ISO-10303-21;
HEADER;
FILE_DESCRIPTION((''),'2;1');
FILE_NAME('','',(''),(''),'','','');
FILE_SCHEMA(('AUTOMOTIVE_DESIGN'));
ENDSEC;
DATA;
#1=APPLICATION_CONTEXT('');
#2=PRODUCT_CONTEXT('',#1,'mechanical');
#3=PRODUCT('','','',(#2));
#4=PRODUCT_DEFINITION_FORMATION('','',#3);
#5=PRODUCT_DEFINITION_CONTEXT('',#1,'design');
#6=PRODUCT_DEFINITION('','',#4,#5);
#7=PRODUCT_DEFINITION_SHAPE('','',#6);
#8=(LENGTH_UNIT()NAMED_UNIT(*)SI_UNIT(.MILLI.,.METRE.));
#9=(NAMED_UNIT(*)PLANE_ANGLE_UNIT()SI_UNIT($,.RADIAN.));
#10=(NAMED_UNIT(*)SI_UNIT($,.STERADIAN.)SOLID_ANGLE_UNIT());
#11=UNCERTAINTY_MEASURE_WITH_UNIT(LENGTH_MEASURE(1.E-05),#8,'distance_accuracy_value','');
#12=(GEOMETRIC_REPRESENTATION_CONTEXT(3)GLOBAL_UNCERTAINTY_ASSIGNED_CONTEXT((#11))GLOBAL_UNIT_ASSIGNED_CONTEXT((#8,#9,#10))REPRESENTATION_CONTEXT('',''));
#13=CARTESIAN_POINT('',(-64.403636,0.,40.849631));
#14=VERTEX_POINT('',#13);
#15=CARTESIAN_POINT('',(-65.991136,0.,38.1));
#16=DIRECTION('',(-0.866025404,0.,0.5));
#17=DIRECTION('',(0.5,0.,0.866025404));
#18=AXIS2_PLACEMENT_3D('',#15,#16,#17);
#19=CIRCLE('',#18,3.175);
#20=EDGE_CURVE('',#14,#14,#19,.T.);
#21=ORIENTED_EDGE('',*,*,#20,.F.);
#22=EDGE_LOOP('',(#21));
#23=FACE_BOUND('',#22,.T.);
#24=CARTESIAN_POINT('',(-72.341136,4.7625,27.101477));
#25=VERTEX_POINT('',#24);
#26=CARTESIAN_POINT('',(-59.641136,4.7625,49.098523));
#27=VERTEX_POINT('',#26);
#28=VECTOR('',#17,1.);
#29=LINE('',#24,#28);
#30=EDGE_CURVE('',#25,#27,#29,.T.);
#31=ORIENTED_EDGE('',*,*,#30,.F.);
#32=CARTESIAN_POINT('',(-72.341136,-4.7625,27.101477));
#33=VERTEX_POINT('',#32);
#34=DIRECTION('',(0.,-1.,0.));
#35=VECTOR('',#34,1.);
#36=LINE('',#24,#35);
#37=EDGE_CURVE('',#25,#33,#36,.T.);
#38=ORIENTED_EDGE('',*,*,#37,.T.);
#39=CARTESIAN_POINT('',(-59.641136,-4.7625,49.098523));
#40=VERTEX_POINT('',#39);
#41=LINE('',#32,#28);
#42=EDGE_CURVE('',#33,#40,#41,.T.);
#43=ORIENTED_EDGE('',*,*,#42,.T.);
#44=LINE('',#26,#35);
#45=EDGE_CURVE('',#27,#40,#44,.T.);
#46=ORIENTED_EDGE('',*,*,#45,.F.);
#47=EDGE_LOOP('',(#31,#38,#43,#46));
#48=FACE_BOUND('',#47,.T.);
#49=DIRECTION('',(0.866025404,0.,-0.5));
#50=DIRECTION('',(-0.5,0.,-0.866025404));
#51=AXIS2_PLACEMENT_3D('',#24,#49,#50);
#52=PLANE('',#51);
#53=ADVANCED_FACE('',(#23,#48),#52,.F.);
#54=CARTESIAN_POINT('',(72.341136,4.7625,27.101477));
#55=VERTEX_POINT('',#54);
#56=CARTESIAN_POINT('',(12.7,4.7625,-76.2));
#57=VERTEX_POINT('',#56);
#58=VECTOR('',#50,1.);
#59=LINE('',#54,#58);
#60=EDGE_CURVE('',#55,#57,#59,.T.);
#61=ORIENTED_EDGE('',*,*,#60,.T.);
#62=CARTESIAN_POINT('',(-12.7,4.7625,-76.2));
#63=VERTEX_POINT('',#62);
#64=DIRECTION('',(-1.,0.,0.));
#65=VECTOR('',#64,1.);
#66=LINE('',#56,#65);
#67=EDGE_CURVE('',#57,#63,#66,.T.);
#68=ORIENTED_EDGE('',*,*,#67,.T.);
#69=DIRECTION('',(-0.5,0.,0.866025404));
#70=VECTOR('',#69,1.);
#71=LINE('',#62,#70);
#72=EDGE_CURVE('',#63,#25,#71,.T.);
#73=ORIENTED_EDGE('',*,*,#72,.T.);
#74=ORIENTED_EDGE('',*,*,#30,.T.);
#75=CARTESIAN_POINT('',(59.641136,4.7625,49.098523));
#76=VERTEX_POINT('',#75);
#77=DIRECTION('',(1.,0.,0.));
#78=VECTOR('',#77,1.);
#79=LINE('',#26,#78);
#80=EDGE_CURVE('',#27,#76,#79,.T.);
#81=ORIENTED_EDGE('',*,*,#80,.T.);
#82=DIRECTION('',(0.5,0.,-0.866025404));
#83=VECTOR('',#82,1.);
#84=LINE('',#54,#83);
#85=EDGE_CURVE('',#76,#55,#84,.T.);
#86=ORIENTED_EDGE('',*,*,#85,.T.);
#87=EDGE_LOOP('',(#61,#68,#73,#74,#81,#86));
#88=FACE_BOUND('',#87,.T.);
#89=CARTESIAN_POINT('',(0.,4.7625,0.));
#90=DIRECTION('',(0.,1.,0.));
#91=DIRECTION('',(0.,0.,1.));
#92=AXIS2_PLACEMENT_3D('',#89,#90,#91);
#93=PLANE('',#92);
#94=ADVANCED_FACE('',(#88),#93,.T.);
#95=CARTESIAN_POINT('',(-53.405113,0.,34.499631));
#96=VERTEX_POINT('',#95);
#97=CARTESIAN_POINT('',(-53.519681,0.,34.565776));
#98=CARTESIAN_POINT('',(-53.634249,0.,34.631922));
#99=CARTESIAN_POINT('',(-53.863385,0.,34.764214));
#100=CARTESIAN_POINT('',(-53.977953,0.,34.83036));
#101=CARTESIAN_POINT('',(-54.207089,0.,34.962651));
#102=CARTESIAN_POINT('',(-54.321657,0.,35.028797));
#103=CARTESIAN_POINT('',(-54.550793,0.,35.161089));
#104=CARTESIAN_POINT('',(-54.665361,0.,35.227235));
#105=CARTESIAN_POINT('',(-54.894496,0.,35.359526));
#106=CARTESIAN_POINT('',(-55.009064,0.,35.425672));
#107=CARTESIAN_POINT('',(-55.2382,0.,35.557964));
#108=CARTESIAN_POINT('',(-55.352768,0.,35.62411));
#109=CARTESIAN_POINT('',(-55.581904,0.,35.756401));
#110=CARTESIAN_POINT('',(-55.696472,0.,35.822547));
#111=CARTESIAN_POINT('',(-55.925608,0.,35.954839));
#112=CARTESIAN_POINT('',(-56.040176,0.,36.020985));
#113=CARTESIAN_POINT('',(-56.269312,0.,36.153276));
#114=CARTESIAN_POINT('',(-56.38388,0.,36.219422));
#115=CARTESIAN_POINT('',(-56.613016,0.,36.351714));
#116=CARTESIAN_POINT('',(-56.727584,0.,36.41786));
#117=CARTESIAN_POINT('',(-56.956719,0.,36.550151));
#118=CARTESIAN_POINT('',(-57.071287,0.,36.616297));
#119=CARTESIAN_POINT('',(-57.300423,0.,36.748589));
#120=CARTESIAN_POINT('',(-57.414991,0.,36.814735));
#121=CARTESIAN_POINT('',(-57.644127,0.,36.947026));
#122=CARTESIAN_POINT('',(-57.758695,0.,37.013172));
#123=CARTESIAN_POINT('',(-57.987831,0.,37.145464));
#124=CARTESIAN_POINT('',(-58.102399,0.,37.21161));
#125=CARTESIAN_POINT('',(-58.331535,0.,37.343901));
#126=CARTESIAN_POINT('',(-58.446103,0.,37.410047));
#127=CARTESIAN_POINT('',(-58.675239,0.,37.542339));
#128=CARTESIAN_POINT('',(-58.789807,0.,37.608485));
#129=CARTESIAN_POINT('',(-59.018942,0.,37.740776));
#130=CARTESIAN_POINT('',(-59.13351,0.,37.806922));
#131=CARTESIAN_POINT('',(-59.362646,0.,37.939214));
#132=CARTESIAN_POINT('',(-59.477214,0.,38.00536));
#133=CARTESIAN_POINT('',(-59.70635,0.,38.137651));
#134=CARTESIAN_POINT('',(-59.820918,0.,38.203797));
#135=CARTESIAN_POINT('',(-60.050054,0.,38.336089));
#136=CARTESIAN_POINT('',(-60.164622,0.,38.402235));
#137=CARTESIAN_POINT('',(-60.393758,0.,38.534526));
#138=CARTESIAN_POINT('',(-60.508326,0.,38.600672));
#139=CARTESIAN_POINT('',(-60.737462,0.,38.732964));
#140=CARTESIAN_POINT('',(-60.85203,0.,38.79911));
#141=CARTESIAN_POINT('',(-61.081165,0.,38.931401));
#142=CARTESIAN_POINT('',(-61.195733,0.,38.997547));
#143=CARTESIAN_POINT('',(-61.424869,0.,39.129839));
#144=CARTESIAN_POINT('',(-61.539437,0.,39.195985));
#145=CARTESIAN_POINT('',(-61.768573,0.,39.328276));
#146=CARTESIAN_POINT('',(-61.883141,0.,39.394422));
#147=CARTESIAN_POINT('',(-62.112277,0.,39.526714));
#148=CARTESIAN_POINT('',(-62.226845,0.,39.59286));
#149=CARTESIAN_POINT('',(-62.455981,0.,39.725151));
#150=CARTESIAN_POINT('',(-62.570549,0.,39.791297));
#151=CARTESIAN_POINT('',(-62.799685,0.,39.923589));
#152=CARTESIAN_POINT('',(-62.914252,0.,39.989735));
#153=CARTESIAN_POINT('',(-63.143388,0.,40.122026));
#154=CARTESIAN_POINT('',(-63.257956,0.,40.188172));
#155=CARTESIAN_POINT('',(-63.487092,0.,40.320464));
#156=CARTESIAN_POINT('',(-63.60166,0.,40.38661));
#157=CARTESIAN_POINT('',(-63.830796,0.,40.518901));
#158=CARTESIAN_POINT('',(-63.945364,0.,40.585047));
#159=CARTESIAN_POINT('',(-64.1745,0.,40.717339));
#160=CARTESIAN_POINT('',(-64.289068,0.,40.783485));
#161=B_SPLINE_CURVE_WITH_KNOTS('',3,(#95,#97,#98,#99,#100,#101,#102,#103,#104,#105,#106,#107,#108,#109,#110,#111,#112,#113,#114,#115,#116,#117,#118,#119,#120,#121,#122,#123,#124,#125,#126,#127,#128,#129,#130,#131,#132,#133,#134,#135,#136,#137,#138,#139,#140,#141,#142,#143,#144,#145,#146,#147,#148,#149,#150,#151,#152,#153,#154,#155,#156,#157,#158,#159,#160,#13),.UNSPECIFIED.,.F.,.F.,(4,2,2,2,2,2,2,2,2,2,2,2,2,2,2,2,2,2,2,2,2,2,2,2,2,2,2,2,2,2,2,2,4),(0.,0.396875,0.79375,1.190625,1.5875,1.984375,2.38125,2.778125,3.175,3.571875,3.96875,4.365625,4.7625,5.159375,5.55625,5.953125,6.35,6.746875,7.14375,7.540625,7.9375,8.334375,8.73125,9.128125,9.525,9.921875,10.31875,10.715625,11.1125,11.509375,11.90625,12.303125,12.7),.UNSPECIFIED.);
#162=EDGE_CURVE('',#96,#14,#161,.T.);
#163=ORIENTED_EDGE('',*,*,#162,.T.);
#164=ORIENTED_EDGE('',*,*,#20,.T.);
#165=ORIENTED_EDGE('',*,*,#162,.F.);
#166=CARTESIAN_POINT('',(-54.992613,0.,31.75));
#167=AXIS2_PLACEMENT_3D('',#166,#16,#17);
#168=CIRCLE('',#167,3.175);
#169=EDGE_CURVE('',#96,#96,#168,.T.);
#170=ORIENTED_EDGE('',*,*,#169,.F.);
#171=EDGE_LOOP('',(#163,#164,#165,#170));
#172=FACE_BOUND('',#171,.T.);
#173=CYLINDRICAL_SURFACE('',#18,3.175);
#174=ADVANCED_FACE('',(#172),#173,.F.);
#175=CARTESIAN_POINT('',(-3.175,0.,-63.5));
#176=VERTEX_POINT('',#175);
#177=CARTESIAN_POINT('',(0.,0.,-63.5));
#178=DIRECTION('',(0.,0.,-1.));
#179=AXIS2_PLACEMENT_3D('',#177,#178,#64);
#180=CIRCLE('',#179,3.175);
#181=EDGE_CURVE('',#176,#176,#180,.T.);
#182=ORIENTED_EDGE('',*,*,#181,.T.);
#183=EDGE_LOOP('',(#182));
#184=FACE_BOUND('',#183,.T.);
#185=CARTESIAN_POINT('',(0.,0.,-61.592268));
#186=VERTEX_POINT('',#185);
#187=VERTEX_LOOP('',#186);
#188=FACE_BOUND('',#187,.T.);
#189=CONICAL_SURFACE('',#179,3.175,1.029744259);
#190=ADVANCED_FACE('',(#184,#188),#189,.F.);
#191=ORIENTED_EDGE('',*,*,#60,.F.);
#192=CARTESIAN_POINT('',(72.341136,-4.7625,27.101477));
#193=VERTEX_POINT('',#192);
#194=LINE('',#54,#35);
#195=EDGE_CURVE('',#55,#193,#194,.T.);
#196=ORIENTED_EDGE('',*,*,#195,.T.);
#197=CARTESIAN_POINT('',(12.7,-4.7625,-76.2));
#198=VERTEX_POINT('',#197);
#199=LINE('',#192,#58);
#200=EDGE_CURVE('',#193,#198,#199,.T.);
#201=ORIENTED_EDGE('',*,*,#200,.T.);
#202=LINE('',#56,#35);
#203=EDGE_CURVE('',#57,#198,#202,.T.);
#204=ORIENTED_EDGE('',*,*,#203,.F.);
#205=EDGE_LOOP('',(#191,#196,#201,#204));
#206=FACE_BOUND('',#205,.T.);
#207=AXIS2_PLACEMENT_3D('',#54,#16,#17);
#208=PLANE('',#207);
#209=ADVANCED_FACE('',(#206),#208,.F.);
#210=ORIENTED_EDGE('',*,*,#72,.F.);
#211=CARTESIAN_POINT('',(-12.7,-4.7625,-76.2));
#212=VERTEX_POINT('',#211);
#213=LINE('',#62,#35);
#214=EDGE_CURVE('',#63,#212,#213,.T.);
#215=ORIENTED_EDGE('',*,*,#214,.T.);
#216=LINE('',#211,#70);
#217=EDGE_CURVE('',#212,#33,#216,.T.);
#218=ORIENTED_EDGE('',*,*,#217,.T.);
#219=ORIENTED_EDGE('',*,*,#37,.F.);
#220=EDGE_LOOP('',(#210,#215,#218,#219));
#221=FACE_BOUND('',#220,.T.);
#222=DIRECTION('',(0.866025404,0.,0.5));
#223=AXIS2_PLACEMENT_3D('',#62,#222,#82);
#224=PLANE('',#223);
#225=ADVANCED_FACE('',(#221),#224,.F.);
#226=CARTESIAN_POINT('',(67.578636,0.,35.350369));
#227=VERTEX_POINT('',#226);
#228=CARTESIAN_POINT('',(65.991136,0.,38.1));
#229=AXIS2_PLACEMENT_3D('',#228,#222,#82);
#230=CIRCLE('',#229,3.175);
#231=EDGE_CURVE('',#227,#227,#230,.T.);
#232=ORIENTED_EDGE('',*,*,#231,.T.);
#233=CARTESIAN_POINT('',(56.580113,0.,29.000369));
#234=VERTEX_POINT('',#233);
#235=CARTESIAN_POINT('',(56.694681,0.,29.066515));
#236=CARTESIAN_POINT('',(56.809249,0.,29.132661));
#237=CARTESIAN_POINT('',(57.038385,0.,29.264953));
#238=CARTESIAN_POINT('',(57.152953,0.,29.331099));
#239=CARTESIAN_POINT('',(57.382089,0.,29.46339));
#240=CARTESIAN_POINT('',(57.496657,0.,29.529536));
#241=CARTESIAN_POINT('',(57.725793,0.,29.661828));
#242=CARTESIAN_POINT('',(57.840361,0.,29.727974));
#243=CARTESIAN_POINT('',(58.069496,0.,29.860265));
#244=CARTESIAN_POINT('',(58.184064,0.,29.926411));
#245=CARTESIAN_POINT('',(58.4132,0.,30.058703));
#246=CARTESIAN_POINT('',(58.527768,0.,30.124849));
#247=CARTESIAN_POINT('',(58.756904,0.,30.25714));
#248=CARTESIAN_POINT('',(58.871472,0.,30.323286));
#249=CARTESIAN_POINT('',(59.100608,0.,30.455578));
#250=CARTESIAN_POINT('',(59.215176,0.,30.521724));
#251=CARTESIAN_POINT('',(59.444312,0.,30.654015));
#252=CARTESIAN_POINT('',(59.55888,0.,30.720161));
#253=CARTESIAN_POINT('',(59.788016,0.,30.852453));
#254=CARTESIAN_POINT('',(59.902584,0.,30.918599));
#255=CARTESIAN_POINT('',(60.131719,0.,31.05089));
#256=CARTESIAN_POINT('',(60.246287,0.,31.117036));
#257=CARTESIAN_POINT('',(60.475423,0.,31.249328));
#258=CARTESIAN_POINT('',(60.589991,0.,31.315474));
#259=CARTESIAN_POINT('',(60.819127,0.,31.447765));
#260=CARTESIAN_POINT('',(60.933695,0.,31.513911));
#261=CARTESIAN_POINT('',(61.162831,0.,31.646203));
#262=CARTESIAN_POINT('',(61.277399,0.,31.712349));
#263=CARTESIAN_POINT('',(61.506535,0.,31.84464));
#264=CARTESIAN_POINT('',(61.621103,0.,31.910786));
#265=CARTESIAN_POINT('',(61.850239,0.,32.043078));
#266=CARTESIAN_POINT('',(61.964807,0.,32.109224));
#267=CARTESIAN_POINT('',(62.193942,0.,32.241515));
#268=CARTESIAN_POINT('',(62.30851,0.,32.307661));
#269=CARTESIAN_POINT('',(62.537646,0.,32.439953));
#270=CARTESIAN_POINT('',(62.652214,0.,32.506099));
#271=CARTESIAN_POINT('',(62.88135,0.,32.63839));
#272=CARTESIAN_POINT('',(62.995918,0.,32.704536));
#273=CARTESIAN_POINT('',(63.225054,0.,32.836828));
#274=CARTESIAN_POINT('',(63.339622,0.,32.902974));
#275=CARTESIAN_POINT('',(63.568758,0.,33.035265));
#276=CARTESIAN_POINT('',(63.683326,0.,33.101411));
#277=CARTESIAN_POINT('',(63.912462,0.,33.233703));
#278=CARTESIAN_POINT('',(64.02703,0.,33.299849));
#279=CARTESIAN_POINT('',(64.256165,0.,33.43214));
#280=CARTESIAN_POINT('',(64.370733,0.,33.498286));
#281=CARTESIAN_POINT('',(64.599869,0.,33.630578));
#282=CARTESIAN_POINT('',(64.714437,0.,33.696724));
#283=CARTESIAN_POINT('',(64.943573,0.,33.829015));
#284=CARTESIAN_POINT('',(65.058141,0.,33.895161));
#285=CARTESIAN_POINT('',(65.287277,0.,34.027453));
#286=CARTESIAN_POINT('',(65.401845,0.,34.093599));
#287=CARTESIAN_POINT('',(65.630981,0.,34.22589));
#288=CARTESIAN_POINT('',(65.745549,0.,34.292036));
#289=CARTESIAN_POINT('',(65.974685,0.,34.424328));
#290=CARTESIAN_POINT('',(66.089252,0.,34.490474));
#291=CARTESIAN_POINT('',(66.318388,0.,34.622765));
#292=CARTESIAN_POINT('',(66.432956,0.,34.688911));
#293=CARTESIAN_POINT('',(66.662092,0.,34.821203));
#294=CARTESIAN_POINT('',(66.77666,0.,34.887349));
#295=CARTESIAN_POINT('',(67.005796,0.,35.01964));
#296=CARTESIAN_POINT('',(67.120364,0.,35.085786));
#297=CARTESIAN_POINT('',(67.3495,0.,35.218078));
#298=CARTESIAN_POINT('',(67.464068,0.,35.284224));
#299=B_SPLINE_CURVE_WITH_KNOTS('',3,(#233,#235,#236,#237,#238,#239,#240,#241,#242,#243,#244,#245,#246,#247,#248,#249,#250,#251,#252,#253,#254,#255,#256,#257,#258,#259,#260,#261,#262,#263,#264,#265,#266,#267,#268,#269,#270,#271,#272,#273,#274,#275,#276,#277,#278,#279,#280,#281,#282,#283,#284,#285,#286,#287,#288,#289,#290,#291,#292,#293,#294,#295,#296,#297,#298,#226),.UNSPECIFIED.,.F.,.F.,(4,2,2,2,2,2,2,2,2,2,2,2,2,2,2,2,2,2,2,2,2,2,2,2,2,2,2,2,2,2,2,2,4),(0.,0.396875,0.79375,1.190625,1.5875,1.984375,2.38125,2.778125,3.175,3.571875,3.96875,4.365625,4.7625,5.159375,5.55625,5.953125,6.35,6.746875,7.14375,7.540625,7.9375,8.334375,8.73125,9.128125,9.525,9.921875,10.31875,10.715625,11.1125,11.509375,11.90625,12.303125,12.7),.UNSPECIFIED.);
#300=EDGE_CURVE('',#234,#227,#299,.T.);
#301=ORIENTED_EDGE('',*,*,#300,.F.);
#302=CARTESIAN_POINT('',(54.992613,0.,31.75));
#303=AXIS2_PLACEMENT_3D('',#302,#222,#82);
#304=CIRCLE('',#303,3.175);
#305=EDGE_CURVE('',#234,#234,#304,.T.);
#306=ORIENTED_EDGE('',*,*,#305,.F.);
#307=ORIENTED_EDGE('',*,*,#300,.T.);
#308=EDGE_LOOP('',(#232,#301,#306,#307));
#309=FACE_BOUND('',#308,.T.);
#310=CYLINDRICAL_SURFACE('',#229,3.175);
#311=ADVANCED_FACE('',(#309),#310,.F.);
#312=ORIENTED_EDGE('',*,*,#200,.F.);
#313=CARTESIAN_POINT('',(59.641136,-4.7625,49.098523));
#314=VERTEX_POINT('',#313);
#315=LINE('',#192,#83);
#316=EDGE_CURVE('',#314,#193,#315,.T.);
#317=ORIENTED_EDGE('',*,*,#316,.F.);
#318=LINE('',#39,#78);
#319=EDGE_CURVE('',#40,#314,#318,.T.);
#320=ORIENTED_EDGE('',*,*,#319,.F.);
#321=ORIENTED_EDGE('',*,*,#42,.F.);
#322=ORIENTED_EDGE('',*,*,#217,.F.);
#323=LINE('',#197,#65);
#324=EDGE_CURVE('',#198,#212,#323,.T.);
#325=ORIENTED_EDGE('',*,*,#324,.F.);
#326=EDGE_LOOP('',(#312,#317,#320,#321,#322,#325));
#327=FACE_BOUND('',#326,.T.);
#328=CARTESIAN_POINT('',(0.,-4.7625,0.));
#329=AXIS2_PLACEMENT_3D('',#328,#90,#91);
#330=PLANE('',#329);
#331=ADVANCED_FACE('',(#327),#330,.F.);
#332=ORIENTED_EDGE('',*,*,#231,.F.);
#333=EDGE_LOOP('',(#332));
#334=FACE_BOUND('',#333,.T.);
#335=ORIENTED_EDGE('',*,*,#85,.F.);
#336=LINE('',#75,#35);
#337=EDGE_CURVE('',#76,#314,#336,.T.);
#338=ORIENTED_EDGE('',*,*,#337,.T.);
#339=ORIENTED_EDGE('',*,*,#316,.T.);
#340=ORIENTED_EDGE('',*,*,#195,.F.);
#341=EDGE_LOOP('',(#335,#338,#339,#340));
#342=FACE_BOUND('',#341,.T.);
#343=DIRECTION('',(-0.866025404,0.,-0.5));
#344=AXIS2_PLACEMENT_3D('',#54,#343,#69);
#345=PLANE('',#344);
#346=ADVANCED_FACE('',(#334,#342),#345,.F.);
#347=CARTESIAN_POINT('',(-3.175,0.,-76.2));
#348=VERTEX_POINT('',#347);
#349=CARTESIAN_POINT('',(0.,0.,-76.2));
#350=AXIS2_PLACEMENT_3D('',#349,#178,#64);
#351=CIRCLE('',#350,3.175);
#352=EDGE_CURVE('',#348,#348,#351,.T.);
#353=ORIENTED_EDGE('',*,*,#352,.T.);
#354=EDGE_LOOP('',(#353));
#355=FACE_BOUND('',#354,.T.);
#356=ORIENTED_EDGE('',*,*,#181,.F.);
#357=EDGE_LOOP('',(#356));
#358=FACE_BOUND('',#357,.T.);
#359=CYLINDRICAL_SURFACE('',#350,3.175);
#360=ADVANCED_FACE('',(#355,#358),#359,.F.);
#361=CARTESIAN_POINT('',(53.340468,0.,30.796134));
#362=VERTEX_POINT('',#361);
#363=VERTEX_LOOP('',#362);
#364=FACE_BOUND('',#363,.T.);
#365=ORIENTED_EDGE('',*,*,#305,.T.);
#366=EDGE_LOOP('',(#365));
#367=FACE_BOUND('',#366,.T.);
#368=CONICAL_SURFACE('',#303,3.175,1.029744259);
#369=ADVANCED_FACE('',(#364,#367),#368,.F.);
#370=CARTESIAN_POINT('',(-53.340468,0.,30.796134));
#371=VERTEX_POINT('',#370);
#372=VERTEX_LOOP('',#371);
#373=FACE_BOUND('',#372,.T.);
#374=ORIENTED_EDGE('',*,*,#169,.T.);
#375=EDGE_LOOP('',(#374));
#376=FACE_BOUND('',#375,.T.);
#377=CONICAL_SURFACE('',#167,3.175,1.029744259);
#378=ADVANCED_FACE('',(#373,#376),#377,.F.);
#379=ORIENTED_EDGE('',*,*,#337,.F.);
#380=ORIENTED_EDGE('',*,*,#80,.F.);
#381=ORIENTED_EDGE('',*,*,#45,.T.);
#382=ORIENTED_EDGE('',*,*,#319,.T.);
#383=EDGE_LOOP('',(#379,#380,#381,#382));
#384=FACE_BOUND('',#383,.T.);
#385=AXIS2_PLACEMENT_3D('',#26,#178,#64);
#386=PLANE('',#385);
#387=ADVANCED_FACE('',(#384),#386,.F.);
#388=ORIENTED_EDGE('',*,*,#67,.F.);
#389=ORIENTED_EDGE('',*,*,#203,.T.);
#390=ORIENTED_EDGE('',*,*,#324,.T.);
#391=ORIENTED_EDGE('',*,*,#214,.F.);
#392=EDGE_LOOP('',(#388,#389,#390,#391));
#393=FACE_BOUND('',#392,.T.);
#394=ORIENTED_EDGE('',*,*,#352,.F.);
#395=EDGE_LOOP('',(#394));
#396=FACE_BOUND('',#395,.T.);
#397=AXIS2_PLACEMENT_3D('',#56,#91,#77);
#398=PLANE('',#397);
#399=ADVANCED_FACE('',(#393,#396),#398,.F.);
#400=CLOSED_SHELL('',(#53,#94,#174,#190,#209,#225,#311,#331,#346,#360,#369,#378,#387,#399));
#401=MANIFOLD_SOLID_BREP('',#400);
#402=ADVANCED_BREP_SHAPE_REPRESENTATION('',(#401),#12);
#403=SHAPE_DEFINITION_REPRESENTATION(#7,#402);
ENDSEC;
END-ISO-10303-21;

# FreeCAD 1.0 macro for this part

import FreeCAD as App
import Part
import Sketcher
Q = App.Units.Quantity


def add_polygon(sketch, points):
    """Adds a closed chain of lines whose ends are joined by coincident constraints."""
    first, n = sketch.GeometryCount, len(points)
    for a, b in zip(points, points[1:] + points[:1]):
        sketch.addGeometry(Part.LineSegment(App.Vector(*a, 0), App.Vector(*b, 0)), False)
    for i in range(n):
        sketch.addConstraint(Sketcher.Constraint("Coincident", first + i, 2, first + (i + 1) % n, 1))

doc = App.newDocument("Part")
body = doc.addObject("PartDesign::Body", "Body")

# Sketch on XZ plane
sketch1 = body.newObject("Sketcher::SketchObject", "Sketch")
sketch1.AttachmentSupport = (doc.getObject("XZ_Plane"), [""])
sketch1.MapMode = "FlatFace"
add_polygon(sketch1, [(13, -76), (-13, -76), (-72, 27), (-60, 49), (60, 49), (72, 27)])  # lines 0-5
sketch1.addConstraint(Sketcher.Constraint("Horizontal", 0))
sketch1.addConstraint(Sketcher.Constraint("Horizontal", 3))
sketch1.addConstraint(Sketcher.Constraint("Symmetric", 1, 2, 4, 2, -2))
sketch1.addConstraint(Sketcher.Constraint("Parallel", 1, 4))
sketch1.addConstraint(Sketcher.Constraint("Parallel", 2, 5))
sketch1.addConstraint(Sketcher.Constraint("Equal", 2, 4))
sketch1.addConstraint(Sketcher.Constraint("DistanceX", 0, 2, 0, 1, Q("1 in")))
sketch1.addConstraint(Sketcher.Constraint("Distance", 2, Q("1 in")))
sketch1.addConstraint(Sketcher.Constraint("DistanceY", 0, 2, -1, 1, Q("3 in")))
sketch1.addConstraint(Sketcher.Constraint("Angle", 1, Q("120 deg")))
sketch1.addConstraint(Sketcher.Constraint("DistanceX", 3, 1, 3, 2, 119.282272))
pad1 = body.newObject("PartDesign::Pad", "Pad")
pad1.Profile = sketch1
pad1.Length = Q("0.375 in")
pad1.Midplane = True

# Sketch on XZ plane
sketch2 = body.newObject("Sketcher::SketchObject", "Sketch001")
sketch2.AttachmentSupport = (doc.getObject("XZ_Plane"), [""])
sketch2.MapMode = "FlatFace"
add_polygon(sketch2, [(53.3, 30.8), (66, 38.1), (67.6, 35.4), (56.6, 29)])  # lines 0-3
sketch2.addGeometry(Part.LineSegment(App.Vector(66, 38.1, 0), App.Vector(53.3, 30.8, 0)), True)  # axis
sketch2.addConstraint(Sketcher.Constraint("Coincident", 4, 1, 0, 2))
sketch2.addConstraint(Sketcher.Constraint("Coincident", 4, 2, 3, 2))
sketch2.addConstraint(Sketcher.Constraint("Perpendicular", 0, 1))
sketch2.addConstraint(Sketcher.Constraint("Perpendicular", 1, 2))
sketch2.addConstraint(Sketcher.Constraint("Angle", 0, Q("30 deg")))
sketch2.addConstraint(Sketcher.Constraint("Angle", 3, Q("151 deg")))
sketch2.addConstraint(Sketcher.Constraint("Distance", 2, Q("0.5 in")))
sketch2.addConstraint(Sketcher.Constraint("DistanceY", -1, 1, 0, 2, Q("1.5 in")))
sketch2.addConstraint(Sketcher.Constraint("Distance", 1, Q("0.125 in")))
sketch2.addConstraint(Sketcher.Constraint("DistanceX", -1, 1, 3, 2, 53.340468))
groove = body.newObject("PartDesign::Groove", "Groove")
groove.Profile = sketch2
groove.ReferenceAxis = (sketch2, ["Axis0"])
groove.Angle = 360
doc.recompute()

polarpattern = body.newObject("PartDesign::PolarPattern", "PolarPattern")
polarpattern.Originals = [groove]
polarpattern.Axis = (doc.getObject("Y_Axis"), [""])
polarpattern.Angle = 360
polarpattern.Occurrences = 3
body.Tip = polarpattern

doc.recompute()
